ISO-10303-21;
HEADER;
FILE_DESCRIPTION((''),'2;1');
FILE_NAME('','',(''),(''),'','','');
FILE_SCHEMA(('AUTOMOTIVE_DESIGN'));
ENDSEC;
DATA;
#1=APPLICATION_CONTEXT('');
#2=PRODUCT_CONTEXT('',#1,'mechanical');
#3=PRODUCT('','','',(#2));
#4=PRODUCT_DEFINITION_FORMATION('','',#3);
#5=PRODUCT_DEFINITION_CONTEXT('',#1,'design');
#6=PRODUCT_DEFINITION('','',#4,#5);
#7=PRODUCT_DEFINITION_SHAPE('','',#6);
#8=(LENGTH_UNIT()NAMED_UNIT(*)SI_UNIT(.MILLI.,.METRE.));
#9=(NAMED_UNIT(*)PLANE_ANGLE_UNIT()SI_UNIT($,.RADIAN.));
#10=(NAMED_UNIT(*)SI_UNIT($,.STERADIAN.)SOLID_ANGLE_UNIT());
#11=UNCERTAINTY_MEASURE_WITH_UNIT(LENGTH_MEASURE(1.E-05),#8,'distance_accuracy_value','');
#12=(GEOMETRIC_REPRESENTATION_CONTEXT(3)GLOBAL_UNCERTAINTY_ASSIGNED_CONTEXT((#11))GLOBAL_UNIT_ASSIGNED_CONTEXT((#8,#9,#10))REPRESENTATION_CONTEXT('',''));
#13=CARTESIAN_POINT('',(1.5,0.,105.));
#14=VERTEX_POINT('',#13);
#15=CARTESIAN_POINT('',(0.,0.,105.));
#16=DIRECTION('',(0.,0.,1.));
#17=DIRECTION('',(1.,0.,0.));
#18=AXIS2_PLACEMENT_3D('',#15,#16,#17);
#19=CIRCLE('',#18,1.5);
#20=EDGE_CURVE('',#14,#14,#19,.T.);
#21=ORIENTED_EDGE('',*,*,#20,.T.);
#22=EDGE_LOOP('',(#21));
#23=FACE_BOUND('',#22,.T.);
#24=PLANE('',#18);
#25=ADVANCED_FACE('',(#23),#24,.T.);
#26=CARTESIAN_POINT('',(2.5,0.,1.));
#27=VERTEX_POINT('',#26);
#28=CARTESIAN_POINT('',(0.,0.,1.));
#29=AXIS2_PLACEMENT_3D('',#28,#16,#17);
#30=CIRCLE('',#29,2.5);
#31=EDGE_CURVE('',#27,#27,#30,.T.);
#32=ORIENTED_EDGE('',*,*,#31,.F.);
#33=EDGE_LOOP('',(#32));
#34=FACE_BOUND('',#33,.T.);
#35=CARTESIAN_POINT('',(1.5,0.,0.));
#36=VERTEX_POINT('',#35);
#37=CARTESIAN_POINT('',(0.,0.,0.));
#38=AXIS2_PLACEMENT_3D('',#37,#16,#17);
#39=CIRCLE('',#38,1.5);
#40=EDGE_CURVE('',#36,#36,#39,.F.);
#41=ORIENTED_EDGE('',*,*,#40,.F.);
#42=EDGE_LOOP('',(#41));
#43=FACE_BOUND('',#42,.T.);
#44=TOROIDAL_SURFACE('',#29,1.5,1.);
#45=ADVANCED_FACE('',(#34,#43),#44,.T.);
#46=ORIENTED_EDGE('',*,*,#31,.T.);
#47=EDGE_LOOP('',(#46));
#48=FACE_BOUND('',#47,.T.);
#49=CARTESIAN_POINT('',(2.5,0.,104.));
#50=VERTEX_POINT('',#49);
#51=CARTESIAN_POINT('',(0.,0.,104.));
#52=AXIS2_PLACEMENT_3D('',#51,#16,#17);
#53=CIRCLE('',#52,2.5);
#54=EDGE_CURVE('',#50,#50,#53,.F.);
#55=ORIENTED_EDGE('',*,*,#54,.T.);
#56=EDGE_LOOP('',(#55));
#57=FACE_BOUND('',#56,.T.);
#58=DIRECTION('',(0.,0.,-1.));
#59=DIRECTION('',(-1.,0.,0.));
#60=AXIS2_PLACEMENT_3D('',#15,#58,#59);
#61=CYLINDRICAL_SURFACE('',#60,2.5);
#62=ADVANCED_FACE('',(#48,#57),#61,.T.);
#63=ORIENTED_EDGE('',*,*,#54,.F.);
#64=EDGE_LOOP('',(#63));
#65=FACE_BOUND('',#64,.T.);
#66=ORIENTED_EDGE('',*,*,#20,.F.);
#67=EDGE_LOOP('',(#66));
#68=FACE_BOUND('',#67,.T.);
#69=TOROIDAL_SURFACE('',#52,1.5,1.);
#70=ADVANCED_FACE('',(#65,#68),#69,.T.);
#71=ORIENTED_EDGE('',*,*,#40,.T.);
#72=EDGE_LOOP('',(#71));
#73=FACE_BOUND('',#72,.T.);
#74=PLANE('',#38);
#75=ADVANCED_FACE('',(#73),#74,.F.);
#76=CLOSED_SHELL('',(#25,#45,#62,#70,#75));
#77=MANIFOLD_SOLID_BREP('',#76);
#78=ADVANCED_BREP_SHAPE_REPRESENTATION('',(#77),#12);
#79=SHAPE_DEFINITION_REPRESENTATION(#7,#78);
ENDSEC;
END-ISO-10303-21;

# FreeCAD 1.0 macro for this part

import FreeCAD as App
import Part
import Sketcher
from FreeCAD import Vector
Q = App.Units.Quantity


def edges_at(feature, points):
    """Names of the edges that pass closest to the given points."""
    edges = feature.Shape.Edges
    near = lambda p: min(range(len(edges)), key=lambda i: edges[i].distToShape(Part.Vertex(*p))[0])
    return sorted({f"Edge{near(p) + 1}" for p in points})

doc = App.newDocument("Part")
body = doc.addObject("PartDesign::Body", "Body")

sketch1 = doc.addObject("Sketcher::SketchObject", "Sketch")
body.addObject(sketch1)
sketch1.AttachmentSupport = (doc.XY_Plane, [""])
sketch1.MapMode = "FlatFace"
sketch1.addGeometry(Part.Circle(Vector(0, 0, 0), Vector(0, 0, 1), 2.5), False)
sketch1.addConstraint([
    Sketcher.Constraint("Coincident", 0, 3, -1, 1),
    Sketcher.Constraint("Diameter", 0, Q("5 mm")),
])
pad1 = doc.addObject("PartDesign::Pad", "Pad")
body.addObject(pad1)
pad1.Profile = sketch1
pad1.Length = 105
doc.recompute()

fillet = doc.addObject("PartDesign::Fillet", "Fillet")
body.addObject(fillet)
fillet.Base = (pad1, edges_at(pad1, [(-2.5, 0, 0), (-2.5, 0, 105)]))
fillet.Radius = 1

doc.recompute()
